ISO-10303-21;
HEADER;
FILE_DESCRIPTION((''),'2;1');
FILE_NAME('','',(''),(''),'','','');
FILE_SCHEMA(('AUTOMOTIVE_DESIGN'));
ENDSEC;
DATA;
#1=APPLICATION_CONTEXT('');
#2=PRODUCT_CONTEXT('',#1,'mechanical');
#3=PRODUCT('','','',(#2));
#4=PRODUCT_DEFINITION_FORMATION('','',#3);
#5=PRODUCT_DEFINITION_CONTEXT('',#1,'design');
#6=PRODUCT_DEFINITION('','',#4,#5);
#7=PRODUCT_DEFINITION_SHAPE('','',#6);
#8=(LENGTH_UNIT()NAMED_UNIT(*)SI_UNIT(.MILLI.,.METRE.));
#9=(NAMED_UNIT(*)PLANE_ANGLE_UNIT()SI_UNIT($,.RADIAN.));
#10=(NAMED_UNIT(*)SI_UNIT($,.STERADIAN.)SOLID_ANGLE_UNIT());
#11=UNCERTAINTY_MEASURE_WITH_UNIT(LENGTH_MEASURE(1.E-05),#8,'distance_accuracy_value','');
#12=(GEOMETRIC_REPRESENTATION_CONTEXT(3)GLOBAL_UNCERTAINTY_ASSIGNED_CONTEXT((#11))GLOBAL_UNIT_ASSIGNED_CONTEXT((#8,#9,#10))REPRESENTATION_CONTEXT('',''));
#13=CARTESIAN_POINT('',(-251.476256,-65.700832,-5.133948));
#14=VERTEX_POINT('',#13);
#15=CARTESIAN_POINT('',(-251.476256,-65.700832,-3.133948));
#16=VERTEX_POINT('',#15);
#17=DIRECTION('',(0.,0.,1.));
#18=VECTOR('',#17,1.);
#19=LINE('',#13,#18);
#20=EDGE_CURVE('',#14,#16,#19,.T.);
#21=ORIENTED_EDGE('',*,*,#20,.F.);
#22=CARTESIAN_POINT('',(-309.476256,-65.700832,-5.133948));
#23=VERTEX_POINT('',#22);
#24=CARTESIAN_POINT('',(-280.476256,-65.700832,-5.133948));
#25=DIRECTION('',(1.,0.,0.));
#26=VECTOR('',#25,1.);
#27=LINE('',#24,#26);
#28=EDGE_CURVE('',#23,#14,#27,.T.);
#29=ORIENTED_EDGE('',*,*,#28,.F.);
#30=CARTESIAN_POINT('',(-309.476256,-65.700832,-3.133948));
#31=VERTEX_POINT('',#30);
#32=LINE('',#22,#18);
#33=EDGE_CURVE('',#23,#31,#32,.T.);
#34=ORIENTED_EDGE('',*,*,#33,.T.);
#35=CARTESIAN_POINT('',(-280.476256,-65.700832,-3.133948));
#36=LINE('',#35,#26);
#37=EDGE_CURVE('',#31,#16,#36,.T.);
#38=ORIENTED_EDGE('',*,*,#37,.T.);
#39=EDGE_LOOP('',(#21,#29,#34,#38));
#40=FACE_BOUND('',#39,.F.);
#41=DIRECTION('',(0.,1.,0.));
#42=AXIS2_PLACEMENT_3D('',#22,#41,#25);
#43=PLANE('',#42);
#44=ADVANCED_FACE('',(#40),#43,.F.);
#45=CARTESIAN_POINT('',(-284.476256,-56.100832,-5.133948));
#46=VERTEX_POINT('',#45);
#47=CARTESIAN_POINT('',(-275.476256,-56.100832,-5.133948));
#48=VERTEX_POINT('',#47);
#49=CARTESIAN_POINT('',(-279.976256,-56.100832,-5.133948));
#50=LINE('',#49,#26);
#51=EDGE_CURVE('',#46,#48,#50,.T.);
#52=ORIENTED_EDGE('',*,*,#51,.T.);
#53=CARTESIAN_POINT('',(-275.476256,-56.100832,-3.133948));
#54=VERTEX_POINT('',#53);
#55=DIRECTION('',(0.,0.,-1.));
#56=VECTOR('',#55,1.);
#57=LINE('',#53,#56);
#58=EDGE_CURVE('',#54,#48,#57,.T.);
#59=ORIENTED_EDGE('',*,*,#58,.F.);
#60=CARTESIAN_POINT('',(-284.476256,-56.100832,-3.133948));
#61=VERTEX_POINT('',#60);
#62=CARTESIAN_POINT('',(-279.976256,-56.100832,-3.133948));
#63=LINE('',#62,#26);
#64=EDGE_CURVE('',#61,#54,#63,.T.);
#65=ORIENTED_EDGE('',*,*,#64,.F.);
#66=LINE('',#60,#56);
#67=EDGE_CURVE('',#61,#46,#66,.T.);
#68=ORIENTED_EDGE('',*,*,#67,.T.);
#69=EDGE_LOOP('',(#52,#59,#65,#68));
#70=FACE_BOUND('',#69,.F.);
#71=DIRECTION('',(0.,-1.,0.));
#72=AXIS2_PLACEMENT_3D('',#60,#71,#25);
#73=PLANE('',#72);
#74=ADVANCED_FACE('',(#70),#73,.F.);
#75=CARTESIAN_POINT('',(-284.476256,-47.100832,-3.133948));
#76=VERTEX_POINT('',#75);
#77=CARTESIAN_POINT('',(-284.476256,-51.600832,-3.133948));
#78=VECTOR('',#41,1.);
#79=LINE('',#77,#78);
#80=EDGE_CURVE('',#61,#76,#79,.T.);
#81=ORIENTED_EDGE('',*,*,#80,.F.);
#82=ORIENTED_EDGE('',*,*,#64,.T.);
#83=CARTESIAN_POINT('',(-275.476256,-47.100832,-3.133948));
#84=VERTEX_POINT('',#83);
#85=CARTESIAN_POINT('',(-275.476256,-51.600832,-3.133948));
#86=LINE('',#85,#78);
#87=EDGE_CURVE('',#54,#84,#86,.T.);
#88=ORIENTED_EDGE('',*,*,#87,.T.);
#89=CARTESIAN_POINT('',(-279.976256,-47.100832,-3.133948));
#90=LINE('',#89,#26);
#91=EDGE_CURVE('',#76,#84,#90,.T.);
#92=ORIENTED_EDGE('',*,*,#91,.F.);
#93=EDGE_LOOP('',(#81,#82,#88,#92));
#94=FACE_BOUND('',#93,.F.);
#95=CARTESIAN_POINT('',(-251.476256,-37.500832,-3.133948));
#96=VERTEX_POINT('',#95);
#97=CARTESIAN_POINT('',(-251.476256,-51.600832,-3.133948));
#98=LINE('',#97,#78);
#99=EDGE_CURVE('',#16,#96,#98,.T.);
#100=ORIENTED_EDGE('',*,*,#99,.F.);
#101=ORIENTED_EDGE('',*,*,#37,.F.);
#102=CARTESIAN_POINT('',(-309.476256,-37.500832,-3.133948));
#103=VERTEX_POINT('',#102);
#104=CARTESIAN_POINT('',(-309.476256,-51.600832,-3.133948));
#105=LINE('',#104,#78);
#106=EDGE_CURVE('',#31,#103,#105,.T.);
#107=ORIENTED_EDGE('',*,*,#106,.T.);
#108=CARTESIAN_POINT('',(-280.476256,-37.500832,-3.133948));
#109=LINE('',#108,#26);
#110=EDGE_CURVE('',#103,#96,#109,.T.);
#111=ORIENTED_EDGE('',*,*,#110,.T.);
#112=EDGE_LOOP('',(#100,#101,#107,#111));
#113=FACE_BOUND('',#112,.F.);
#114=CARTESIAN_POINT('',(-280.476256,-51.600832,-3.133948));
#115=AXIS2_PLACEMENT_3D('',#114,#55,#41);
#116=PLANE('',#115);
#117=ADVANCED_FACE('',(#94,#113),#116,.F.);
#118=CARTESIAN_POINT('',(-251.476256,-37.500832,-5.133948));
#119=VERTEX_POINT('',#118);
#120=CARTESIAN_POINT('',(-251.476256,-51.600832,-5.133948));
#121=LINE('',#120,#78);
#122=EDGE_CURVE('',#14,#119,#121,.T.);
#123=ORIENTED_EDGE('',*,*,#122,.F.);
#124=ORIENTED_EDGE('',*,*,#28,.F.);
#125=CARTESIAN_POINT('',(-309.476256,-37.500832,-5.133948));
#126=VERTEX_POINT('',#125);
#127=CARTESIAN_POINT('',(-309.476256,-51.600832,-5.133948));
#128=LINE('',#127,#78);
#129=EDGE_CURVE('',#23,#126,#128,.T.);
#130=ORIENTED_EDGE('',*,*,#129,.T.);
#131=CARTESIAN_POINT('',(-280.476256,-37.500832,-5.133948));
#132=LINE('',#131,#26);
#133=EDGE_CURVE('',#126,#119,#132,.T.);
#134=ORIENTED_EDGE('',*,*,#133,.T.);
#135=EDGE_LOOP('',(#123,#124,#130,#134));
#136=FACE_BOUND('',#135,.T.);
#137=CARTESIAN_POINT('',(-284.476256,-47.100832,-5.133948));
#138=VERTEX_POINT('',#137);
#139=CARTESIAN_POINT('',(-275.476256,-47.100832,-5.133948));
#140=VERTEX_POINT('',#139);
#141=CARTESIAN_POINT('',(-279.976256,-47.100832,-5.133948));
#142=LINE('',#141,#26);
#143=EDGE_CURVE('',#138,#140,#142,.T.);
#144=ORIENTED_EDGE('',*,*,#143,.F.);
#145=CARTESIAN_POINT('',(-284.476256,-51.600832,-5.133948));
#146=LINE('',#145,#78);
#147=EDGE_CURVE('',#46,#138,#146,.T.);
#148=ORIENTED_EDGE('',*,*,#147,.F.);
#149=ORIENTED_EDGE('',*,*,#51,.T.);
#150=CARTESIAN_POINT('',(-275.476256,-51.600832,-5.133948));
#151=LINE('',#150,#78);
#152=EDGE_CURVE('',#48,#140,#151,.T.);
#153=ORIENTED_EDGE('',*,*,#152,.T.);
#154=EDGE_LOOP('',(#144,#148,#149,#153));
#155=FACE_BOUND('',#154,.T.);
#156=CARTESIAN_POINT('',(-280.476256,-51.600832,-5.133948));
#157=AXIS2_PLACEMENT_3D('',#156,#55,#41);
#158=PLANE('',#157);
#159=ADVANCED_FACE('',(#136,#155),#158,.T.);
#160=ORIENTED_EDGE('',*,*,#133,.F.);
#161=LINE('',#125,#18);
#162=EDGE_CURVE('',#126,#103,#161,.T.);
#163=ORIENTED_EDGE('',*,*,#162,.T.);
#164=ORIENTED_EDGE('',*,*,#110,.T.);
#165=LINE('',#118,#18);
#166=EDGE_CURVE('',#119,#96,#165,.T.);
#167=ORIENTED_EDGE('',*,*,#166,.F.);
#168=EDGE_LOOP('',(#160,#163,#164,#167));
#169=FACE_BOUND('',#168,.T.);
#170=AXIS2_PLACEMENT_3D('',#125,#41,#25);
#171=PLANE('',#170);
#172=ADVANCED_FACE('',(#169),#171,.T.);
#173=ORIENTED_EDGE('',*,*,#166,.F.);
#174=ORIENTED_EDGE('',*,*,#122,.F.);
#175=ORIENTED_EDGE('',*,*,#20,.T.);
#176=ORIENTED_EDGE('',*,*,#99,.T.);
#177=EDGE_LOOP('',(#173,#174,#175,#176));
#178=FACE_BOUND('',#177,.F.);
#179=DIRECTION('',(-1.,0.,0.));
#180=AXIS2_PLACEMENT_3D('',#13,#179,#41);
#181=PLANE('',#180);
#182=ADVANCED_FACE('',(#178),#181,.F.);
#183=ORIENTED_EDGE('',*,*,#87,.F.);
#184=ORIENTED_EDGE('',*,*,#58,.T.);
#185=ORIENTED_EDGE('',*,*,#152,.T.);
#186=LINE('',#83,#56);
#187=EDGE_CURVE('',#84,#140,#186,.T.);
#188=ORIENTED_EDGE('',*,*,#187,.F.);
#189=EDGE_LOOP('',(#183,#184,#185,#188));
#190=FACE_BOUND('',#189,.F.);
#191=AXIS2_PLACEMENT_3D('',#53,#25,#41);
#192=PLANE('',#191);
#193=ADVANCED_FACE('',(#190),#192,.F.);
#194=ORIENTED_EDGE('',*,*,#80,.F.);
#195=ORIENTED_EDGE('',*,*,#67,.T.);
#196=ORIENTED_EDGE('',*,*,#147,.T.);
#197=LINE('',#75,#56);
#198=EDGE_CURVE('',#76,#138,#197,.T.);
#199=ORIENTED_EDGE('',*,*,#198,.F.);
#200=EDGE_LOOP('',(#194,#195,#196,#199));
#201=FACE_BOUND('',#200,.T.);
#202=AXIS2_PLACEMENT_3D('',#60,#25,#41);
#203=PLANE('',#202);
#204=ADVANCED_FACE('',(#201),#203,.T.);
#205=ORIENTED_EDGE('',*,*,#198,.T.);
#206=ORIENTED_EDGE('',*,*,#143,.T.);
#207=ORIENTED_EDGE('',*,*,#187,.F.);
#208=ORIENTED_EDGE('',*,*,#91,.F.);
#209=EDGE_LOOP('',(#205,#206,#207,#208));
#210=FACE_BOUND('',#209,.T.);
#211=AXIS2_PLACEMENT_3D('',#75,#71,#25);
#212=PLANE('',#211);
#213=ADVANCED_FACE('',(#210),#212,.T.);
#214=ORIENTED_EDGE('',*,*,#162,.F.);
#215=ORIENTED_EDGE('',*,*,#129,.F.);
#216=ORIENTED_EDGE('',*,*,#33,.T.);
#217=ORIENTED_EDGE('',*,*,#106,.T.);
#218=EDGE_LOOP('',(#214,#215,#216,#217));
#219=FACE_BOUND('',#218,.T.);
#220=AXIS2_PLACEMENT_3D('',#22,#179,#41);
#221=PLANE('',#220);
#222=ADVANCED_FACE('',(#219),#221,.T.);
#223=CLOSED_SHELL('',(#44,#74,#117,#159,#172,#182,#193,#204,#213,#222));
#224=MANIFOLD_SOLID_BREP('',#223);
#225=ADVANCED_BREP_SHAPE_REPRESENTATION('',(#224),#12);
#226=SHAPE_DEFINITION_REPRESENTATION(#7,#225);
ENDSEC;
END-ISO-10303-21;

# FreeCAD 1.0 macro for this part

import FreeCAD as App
import Part
import Sketcher
from FreeCAD import Vector


def add_polygon(sketch, points):
    """Adds a closed chain of lines whose ends are joined by coincident constraints."""
    first, n = sketch.GeometryCount, len(points)
    for a, b in zip(points, points[1:] + points[:1]):
        sketch.addGeometry(Part.LineSegment(App.Vector(*a, 0), App.Vector(*b, 0)), False)
    for i in range(n):
        sketch.addConstraint(Sketcher.Constraint("Coincident", first + i, 2, first + (i + 1) % n, 1))

doc = App.newDocument("Part")
params = doc.addObject("Spreadsheet::Sheet", "Params")
for row, (alias, value) in enumerate([
    ("sketch1_width", "9 mm"),
    ("pad1_length", "2 mm"),
    ("sketch2_diameter", "8.52 mm"),
    ("pad2_length", "34.920666 mm"),
    ("sketch3_width", "58 mm"),
    ("sketch3_height", "28.2 mm"),
    ("pad3_length", "2 mm"),
], start=1):
    params.set(f"A{row}", alias)
    params.set(f"B{row}", "=" + value)
    params.setAlias(f"B{row}", alias)

body = doc.addObject("PartDesign::Body", "Body")

sketch1 = body.newObject("Sketcher::SketchObject", "Sketch")
sketch1.AttachmentSupport = (doc.getObject("XY_Plane"), [""])
sketch1.MapMode = "FlatFace"
sketch1.AttachmentOffset = App.Placement(Vector(0, 0, -3.133948), App.Rotation())
add_polygon(sketch1, [(-284, -47), (-284, -56), (-275, -56), (-275, -47)])
sketch1.addConstraint([
    Sketcher.Constraint("Vertical", 0),
    Sketcher.Constraint("Horizontal", 1),
    Sketcher.Constraint("Vertical", 2),
    Sketcher.Constraint("Horizontal", 3),
    Sketcher.Constraint("Equal", 3, 0),
    Sketcher.Constraint("DistanceX", 1, 1, 1, 2, 9.0),
    Sketcher.Constraint("DistanceY", 0, 2, -1, 1, 56.100832),
    Sketcher.Constraint("DistanceX", 0, 2, -1, 1, 284.476256),
])
sketch1.setExpression("Constraints[9]", "Params.sketch1_width")
pad1 = body.newObject("PartDesign::Pad", "Pad")
pad1.Profile = sketch1
pad1.setExpression("Length", "Params.pad1_length")
pad1.Reversed = True
body2 = doc.addObject("PartDesign::Body", "Body001")

sketch2 = body2.newObject("Sketcher::SketchObject", "Sketch001")
sketch2.AttachmentSupport = (doc.getObject("XY_Plane001"), [""])
sketch2.MapMode = "FlatFace"
sketch2.AttachmentOffset = App.Placement(Vector(0, 0, -5.133948), App.Rotation())
sketch2.addGeometry(Part.Circle(Vector(-280, -51.6, 0), Vector(0, 0, 1), 4.3), False)
sketch2.addConstraint([
    Sketcher.Constraint("Diameter", 0, 8.52),
    Sketcher.Constraint("DistanceY", 0, 3, -1, 1, 51.600832),
    Sketcher.Constraint("DistanceX", 0, 3, -1, 1, 279.976256),
])
sketch2.setExpression("Constraints[0]", "Params.sketch2_diameter")
pad2 = body2.newObject("PartDesign::Pad", "Pad001")
pad2.Profile = sketch2
pad2.setExpression("Length", "Params.pad2_length")
body3 = doc.addObject("PartDesign::Body", "Body002")

sketch3 = body3.newObject("Sketcher::SketchObject", "Sketch002")
sketch3.AttachmentSupport = (doc.getObject("XY_Plane002"), [""])
sketch3.MapMode = "FlatFace"
sketch3.AttachmentOffset = App.Placement(Vector(0, 0, -5.133948), App.Rotation())
add_polygon(sketch3, [(-251, -66), (-309, -66), (-309, -38), (-251, -38)])
sketch3.addConstraint([
    Sketcher.Constraint("Horizontal", 0),
    Sketcher.Constraint("Vertical", 1),
    Sketcher.Constraint("Horizontal", 2),
    Sketcher.Constraint("Vertical", 3),
    Sketcher.Constraint("DistanceX", 0, 2, 0, 1, 58.0),
    Sketcher.Constraint("DistanceY", 1, 1, 1, 2, 28.2),
    Sketcher.Constraint("DistanceX", 0, 2, -1, 1, 309.476256),
    Sketcher.Constraint("DistanceY", 0, 2, -1, 1, 65.700832),
])
sketch3.setExpression("Constraints[8]", "Params.sketch3_width")
sketch3.setExpression("Constraints[9]", "Params.sketch3_height")
pad3 = body3.newObject("PartDesign::Pad", "Pad002")
pad3.Profile = sketch3
pad3.setExpression("Length", "Params.pad3_length")
doc.recompute()

boolean = body3.newObject("PartDesign::Boolean", "Boolean")
boolean.Type = "Cut"
boolean.addObjects([body2])
doc.recompute()

boolean2 = body3.newObject("PartDesign::Boolean", "Boolean001")
boolean2.Type = "Cut"
boolean2.addObjects([body])

doc.recompute()
